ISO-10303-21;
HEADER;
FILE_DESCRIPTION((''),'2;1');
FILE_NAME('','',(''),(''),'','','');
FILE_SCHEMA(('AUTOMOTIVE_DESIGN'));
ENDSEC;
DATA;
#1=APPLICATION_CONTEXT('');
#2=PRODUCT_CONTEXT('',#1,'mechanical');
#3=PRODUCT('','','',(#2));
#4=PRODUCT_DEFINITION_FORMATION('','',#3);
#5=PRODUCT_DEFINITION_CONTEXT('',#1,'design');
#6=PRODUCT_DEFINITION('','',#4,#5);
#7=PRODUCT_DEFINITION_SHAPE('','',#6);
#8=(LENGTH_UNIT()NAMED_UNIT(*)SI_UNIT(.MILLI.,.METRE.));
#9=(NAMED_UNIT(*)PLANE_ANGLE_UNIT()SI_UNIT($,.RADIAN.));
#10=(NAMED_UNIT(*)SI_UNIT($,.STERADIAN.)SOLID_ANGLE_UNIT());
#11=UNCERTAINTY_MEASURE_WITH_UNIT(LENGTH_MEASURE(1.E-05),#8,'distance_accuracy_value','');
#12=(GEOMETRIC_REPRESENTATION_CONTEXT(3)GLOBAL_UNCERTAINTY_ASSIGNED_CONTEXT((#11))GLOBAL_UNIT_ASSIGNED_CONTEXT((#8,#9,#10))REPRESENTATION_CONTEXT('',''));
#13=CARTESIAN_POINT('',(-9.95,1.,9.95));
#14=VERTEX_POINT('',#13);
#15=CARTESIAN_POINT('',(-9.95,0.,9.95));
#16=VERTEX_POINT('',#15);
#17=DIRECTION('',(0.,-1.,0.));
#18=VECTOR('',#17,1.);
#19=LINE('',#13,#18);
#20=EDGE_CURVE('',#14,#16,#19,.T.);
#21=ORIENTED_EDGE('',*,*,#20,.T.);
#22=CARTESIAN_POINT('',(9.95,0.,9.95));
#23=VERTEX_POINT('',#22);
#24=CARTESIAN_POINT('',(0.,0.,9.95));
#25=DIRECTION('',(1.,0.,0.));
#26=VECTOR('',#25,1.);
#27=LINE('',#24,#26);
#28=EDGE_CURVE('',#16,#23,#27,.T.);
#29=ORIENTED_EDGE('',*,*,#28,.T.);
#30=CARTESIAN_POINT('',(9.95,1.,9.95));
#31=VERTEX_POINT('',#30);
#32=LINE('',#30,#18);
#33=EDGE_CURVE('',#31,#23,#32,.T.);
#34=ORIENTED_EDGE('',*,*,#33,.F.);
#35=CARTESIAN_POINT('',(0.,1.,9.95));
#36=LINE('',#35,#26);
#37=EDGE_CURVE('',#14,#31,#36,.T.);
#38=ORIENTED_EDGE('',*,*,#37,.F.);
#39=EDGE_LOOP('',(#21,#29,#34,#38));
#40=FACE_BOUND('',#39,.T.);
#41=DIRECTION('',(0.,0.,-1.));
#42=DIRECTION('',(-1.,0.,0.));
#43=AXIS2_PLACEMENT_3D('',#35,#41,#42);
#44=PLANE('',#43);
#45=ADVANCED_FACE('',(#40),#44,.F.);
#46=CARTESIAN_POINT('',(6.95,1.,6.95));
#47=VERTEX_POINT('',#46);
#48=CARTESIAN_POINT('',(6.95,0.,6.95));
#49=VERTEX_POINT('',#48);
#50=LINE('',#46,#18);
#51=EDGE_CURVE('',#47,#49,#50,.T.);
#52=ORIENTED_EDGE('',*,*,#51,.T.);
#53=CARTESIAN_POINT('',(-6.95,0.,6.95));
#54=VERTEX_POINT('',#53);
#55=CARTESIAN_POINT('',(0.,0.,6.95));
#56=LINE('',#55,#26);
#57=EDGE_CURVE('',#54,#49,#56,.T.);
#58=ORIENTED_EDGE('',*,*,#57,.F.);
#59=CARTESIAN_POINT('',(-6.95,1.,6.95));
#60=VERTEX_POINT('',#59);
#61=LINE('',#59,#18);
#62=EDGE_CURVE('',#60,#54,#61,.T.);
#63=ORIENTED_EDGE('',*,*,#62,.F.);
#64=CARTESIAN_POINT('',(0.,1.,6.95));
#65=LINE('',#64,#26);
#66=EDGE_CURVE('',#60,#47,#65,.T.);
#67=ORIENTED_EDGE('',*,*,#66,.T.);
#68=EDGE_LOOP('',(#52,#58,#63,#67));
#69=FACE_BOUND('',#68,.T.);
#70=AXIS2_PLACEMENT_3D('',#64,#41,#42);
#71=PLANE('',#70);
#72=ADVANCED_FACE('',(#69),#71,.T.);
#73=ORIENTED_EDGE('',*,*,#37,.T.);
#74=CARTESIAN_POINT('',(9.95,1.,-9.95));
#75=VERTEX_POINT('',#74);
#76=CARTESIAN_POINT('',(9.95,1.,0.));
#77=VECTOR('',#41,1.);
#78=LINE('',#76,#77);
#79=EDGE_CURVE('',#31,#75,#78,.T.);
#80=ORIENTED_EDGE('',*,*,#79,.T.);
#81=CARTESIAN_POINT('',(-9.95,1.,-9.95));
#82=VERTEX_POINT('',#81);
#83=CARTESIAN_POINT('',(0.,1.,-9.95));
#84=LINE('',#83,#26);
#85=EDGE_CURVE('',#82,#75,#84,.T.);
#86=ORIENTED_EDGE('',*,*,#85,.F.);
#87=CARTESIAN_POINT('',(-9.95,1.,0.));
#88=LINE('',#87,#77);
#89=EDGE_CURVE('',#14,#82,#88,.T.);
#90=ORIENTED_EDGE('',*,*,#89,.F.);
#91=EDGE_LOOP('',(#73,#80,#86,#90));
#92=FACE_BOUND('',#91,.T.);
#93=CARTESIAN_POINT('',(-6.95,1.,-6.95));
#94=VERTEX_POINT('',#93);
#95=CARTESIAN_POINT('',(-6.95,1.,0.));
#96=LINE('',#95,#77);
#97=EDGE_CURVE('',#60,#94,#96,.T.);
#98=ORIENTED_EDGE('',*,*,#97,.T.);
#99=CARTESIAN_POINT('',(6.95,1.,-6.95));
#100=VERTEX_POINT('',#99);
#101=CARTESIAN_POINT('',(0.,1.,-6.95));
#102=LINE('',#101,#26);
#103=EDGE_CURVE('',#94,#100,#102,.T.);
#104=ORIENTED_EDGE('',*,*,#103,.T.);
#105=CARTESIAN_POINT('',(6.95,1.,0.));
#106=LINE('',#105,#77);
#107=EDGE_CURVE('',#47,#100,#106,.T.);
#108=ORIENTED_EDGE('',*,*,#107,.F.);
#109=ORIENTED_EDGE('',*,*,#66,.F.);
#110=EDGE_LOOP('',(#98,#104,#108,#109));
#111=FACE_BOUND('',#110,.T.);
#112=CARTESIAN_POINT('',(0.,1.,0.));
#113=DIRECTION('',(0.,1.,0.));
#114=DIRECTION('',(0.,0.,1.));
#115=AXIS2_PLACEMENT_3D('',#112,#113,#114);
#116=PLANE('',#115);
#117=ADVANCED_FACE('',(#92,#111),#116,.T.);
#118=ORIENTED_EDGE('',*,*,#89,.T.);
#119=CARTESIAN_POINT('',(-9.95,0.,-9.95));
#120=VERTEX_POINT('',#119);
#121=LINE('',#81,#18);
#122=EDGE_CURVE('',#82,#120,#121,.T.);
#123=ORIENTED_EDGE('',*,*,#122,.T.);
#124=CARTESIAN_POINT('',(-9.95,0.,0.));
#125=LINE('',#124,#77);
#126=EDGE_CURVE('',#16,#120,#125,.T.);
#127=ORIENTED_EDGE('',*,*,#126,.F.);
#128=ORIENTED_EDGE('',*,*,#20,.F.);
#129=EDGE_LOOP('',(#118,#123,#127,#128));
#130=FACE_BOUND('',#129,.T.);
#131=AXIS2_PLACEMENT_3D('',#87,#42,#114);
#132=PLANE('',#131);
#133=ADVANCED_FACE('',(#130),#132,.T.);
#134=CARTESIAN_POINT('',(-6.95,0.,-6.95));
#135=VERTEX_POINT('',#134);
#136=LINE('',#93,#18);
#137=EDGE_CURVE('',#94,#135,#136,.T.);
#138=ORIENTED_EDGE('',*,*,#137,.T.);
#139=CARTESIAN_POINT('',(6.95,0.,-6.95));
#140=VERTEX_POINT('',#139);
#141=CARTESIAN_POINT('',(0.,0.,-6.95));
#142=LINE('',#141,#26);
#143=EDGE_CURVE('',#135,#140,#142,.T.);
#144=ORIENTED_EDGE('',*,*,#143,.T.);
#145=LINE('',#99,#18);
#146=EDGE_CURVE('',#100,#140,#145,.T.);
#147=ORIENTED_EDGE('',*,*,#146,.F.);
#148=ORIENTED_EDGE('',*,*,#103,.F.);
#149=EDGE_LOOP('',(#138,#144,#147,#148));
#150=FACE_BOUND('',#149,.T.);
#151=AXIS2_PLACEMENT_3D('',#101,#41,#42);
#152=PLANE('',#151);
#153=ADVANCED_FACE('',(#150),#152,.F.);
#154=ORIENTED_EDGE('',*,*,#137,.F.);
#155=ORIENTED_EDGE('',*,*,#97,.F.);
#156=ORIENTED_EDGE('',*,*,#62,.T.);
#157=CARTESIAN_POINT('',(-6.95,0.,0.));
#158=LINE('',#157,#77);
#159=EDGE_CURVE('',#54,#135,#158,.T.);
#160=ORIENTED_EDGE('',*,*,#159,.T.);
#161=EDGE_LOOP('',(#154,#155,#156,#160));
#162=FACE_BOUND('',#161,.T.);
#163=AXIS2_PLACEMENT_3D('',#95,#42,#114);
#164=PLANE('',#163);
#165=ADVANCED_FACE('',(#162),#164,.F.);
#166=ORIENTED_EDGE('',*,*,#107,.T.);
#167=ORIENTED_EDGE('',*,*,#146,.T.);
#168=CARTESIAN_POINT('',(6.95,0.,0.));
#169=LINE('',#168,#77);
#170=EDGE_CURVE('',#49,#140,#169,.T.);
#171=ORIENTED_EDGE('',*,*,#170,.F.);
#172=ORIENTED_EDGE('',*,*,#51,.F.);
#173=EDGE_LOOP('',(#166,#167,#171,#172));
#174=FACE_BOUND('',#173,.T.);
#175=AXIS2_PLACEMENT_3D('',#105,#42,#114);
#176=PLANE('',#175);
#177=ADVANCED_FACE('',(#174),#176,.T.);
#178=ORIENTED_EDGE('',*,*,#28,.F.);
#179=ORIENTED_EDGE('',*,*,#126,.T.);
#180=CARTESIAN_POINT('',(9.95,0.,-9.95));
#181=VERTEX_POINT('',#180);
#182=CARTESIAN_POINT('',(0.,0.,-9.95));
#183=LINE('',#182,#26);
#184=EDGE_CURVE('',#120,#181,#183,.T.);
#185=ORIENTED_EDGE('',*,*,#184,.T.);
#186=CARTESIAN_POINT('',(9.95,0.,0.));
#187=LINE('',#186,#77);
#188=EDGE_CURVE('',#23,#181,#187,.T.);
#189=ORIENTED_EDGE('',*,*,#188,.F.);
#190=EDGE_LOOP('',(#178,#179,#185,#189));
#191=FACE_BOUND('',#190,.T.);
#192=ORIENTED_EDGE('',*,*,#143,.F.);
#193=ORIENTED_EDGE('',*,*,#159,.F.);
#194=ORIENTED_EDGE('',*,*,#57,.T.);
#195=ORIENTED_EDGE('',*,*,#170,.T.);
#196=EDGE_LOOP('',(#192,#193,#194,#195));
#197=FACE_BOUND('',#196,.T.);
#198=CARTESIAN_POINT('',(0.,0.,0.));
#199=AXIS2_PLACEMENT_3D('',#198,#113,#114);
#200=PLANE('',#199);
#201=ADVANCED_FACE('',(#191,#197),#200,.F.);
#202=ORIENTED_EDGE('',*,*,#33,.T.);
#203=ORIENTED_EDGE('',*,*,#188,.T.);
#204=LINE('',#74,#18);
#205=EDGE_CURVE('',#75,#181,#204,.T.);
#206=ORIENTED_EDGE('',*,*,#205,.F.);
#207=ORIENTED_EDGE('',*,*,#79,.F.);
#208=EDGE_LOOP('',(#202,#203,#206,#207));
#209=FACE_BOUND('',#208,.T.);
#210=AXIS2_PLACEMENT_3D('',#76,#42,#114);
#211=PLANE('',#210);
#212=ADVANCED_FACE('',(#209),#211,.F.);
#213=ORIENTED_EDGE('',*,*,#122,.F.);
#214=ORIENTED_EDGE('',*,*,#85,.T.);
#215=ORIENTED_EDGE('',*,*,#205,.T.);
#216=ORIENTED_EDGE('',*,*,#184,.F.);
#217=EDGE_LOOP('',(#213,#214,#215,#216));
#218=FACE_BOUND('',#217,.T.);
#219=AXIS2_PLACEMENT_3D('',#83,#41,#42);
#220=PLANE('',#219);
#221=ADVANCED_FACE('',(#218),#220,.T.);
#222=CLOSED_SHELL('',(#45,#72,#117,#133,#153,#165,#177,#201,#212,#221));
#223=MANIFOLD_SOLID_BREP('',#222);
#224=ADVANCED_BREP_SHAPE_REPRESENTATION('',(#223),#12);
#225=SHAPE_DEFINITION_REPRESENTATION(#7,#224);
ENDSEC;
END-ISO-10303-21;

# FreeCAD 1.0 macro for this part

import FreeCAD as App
import Part
import Sketcher
from FreeCAD import Vector
Q = App.Units.Quantity


def add_polygon(sketch, points):
    """Adds a closed chain of lines whose ends are joined by coincident constraints."""
    first, n = sketch.GeometryCount, len(points)
    for a, b in zip(points, points[1:] + points[:1]):
        sketch.addGeometry(Part.LineSegment(App.Vector(*a, 0), App.Vector(*b, 0)), False)
    for i in range(n):
        sketch.addConstraint(Sketcher.Constraint("Coincident", first + i, 2, first + (i + 1) % n, 1))

doc = App.newDocument("Part")
body = doc.addObject("PartDesign::Body", "Body")

sketch1 = body.newObject("Sketcher::SketchObject", "Sketch")
sketch1.AttachmentSupport = (doc.getObject("XZ_Plane"), [""])
sketch1.MapMode = "FlatFace"
add_polygon(sketch1, [(-9.95, -9.95), (-9.95, 9.95), (9.95, 9.95), (9.95, -9.95)])
add_polygon(sketch1, [(6.95, 6.95), (-6.95, 6.95), (-6.95, -6.95), (6.95, -6.95)])
sketch1.addConstraint([
    Sketcher.Constraint("Vertical", 0),
    Sketcher.Constraint("Horizontal", 1),
    Sketcher.Constraint("Vertical", 2),
    Sketcher.Constraint("Horizontal", 3),
    Sketcher.Constraint("Horizontal", 4),
    Sketcher.Constraint("Vertical", 5),
    Sketcher.Constraint("Horizontal", 6),
    Sketcher.Constraint("Vertical", 7),
    Sketcher.Constraint("Symmetric", 0, 2, 2, 2, -1, 1),
    Sketcher.Constraint("Symmetric", 4, 2, 6, 2, -1, 1),
    Sketcher.Constraint("Equal", 3, 0),
    Sketcher.Constraint("Equal", 6, 5),
    Sketcher.Constraint("DistanceX", 1, 1, 1, 2, Q("19.9 mm")),
    Sketcher.Constraint("DistanceX", 4, 2, 4, 1, Q("13.9 mm")),
])
pad1 = body.newObject("PartDesign::Pad", "Pad")
pad1.Profile = sketch1
pad1.Length = 1
pad1.Reversed = True

doc.recompute()
